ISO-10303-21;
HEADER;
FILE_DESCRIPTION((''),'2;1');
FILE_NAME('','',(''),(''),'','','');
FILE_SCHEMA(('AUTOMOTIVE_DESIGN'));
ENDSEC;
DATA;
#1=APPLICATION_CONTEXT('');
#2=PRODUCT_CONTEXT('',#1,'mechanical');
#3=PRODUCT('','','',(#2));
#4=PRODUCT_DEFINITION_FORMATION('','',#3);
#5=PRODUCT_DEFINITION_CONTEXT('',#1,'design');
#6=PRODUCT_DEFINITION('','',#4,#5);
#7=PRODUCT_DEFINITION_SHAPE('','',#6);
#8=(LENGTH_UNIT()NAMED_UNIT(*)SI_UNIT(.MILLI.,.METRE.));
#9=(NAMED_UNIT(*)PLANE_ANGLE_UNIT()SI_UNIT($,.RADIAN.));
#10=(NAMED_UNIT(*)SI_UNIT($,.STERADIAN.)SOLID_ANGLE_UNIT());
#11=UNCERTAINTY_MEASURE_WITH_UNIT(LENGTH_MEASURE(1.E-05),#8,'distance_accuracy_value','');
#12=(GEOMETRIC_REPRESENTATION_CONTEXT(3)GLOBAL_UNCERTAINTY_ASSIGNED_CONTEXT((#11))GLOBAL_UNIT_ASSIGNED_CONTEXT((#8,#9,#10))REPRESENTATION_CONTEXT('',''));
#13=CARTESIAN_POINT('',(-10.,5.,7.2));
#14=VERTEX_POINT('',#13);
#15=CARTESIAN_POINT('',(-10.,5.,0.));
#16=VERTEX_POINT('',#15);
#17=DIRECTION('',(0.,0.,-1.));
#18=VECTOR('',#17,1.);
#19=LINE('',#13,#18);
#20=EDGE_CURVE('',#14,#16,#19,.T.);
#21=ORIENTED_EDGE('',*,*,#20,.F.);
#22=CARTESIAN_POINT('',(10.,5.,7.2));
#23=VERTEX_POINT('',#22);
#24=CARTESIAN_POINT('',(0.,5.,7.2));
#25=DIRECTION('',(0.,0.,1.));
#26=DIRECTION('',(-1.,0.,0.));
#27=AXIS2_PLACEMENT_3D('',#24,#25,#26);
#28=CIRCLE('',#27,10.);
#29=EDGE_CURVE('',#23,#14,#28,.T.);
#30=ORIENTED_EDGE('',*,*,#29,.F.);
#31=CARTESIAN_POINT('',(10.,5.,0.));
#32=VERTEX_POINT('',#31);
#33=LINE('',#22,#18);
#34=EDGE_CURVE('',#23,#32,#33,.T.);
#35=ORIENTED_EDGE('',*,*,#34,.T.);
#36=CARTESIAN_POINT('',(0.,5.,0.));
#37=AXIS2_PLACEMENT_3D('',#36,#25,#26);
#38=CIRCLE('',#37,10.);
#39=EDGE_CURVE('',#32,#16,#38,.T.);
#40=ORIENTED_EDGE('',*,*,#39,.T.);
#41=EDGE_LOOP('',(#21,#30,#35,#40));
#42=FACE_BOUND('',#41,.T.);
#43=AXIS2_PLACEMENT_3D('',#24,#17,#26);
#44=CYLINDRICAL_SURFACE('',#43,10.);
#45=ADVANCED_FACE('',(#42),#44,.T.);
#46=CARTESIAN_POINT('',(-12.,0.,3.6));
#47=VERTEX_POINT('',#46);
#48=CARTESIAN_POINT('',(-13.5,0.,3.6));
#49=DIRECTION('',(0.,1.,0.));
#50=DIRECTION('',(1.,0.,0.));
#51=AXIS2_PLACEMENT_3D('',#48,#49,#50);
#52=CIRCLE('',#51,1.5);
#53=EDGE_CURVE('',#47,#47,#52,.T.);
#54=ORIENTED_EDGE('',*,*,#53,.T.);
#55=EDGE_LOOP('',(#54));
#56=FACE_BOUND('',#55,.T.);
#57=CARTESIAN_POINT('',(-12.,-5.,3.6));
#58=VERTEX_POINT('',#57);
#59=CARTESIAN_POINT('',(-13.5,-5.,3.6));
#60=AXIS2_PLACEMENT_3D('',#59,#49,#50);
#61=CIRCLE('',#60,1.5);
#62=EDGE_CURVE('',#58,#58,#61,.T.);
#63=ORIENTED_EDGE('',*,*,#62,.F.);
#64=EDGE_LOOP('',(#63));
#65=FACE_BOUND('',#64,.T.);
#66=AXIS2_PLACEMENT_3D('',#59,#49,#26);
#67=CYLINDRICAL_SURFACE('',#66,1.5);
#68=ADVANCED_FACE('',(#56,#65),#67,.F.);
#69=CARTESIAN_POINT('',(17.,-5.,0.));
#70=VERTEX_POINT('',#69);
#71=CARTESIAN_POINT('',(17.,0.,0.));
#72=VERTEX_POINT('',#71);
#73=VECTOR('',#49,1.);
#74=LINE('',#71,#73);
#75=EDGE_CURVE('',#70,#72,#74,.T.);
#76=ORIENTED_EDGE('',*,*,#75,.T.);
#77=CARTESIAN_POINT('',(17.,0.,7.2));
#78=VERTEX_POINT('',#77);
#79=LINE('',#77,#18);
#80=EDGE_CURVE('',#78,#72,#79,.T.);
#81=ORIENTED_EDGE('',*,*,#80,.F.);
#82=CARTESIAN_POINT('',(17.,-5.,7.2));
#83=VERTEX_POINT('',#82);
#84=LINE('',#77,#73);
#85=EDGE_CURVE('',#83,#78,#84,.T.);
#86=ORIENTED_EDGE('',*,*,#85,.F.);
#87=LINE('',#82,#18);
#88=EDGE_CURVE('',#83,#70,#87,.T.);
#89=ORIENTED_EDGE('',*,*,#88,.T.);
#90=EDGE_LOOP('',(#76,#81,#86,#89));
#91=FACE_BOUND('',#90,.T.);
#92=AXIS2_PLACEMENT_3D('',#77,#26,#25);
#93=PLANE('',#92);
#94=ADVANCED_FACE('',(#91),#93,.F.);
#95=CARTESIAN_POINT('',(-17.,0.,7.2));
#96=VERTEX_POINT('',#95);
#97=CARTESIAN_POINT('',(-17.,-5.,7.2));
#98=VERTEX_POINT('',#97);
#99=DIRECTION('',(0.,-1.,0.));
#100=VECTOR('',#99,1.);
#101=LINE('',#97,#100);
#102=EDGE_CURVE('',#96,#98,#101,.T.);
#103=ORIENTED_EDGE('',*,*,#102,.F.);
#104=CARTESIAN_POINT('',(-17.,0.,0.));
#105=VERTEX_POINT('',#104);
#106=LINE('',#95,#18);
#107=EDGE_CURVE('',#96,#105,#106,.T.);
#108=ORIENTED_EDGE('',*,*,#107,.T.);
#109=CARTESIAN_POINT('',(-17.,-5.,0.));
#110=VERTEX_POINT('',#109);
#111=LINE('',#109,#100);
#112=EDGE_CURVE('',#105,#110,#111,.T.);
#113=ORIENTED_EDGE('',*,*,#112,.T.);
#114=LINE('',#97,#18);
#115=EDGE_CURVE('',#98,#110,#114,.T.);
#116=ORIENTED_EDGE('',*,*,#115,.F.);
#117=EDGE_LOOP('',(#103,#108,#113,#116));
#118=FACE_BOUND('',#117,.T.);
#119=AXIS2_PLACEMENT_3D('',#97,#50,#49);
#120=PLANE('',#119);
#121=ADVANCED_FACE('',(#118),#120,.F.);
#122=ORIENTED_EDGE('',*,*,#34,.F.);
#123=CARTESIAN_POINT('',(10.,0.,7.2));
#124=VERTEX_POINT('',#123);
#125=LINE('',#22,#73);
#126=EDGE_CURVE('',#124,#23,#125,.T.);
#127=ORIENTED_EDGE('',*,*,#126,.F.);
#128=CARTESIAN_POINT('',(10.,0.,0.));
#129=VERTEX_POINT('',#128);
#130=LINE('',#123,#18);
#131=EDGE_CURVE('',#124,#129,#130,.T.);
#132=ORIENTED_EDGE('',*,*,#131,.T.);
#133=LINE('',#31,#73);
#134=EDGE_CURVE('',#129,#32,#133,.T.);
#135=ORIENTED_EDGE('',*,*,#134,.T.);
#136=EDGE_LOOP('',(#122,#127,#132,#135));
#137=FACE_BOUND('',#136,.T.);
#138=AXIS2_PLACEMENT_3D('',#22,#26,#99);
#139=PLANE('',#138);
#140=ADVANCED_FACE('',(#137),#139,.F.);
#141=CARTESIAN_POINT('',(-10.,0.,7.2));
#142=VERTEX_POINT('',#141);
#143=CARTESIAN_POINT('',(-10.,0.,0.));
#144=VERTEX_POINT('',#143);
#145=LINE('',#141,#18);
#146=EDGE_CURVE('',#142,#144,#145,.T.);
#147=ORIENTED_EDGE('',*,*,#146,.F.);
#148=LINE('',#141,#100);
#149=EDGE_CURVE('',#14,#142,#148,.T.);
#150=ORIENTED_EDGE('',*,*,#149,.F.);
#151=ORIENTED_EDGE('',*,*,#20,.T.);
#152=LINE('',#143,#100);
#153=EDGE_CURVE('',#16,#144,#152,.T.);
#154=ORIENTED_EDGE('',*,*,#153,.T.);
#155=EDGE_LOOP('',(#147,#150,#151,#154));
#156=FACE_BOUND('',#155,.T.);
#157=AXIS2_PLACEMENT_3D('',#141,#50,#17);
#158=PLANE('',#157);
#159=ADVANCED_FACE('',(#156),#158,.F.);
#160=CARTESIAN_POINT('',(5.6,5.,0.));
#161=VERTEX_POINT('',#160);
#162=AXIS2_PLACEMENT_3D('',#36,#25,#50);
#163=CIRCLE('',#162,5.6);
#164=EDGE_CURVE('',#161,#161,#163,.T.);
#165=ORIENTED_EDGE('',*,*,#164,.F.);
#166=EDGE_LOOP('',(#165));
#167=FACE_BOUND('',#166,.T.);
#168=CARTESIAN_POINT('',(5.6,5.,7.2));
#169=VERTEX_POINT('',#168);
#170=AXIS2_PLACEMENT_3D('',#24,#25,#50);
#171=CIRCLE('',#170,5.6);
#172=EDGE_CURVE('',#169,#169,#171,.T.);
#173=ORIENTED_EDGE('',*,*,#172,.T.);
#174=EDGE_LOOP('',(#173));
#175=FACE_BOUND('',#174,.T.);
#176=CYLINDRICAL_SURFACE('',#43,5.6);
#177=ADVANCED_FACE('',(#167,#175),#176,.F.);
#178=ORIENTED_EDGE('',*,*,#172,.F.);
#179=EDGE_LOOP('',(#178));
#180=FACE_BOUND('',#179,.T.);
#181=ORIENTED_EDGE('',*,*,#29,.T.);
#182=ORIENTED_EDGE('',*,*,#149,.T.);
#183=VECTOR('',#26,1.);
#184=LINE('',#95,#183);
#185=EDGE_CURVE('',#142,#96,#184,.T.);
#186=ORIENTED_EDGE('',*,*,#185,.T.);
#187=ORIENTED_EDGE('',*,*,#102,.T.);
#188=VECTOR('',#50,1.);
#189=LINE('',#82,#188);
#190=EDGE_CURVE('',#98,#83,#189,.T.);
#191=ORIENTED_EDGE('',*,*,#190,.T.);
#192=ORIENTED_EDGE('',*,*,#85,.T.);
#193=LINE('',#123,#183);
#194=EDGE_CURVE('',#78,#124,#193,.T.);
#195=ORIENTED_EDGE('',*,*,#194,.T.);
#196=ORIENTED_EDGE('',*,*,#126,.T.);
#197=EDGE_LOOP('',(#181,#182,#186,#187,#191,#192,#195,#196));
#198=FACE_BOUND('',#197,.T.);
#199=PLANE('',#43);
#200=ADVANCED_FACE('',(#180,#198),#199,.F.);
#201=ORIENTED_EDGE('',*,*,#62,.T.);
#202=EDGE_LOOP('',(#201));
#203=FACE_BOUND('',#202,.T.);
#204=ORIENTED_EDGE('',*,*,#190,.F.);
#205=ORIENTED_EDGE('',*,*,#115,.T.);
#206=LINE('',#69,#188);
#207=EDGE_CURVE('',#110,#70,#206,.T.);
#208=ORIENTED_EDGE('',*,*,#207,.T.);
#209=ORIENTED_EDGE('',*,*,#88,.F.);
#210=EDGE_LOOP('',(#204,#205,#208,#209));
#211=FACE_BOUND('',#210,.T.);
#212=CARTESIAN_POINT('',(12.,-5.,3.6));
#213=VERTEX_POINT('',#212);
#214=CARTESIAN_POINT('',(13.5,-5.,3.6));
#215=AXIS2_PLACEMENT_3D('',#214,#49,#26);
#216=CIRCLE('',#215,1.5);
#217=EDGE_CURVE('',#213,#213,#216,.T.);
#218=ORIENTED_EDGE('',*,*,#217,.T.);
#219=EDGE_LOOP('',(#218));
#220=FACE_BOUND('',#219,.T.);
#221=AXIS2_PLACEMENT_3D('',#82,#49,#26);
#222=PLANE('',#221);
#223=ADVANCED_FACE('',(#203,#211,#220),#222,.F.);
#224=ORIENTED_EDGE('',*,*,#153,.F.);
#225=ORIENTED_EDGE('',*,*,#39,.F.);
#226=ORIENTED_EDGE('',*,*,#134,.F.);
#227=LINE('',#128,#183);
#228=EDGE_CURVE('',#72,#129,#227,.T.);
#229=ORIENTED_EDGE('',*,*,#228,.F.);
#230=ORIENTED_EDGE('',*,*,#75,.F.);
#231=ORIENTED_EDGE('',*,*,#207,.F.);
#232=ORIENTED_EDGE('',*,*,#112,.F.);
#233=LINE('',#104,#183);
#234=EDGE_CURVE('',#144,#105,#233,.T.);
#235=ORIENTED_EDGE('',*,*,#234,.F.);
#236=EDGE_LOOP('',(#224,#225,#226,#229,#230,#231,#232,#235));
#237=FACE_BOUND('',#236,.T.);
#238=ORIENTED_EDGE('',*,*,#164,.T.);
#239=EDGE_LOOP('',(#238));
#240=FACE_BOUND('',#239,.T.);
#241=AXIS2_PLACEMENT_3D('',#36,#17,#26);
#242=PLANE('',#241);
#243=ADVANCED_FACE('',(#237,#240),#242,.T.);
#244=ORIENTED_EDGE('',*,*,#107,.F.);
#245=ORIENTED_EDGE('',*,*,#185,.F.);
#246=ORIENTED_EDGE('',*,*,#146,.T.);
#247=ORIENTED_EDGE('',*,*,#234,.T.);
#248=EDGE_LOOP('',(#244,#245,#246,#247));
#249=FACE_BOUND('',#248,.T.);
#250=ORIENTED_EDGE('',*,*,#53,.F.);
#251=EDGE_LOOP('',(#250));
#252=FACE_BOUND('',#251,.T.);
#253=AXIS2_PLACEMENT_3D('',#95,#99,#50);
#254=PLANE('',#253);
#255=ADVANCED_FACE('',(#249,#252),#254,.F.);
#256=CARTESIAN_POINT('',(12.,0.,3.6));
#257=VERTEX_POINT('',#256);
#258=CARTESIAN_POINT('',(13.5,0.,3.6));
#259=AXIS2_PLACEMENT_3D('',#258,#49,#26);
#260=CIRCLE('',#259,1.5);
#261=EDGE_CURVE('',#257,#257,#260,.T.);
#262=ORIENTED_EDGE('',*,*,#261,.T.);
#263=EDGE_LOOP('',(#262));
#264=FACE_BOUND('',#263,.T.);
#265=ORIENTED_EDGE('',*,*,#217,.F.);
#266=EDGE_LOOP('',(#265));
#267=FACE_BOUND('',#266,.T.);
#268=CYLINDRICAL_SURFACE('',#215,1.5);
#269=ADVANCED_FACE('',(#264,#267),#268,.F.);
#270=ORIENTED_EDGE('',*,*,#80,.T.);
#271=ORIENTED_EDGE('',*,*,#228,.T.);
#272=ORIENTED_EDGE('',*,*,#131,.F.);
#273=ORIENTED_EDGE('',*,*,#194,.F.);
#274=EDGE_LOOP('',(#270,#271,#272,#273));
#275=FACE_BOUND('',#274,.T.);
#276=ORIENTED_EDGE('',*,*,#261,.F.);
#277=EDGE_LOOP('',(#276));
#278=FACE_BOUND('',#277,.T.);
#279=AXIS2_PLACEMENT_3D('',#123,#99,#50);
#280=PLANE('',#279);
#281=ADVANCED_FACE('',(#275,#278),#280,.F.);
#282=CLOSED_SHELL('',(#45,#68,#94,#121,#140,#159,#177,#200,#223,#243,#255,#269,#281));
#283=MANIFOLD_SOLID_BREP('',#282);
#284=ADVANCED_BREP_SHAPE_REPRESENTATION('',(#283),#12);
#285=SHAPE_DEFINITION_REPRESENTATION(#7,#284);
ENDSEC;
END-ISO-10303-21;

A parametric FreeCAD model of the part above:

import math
import FreeCAD as App
import Part
import Sketcher

V = App.Vector

doc = App.newDocument("Part")
body = doc.addObject("PartDesign::Body", "Body")

sketch1 = body.newObject("Sketcher::SketchObject", "Sketch")
sketch1.AttachmentSupport = (doc.getObject("XY_Plane"), [""])
sketch1.MapMode = "FlatFace"
sketch1.addGeometry([
    Part.LineSegment(V(17, 0, 0), V(10, 0, 0)),
    Part.LineSegment(V(10, 0, 0), V(10, 5, 0)),
    Part.ArcOfCircle(Part.Circle(V(0, 5, 0), V(0, 0, 1), 10), math.radians(0), math.radians(180)),
    Part.LineSegment(V(-10, 5, 0), V(-10, 0, 0)),
    Part.LineSegment(V(-10, 0, 0), V(-17, 0, 0)),
    Part.LineSegment(V(-17, 0, 0), V(-17, -5, 0)),
    Part.LineSegment(V(-17, -5, 0), V(17, -5, 0)),
    Part.LineSegment(V(17, -5, 0), V(17, 0, 0)),
    Part.Circle(V(0, 5, 0), V(0, 0, 1), 6),
], False)
sketch1.addConstraint([
    Sketcher.Constraint("Coincident", 0, 2, 1, 1),
    Sketcher.Constraint("Tangent", 1, 2, 2, 1),
    Sketcher.Constraint("Tangent", 2, 2, 3, 1),
    Sketcher.Constraint("Coincident", 3, 2, 4, 1),
    Sketcher.Constraint("Coincident", 4, 2, 5, 1),
    Sketcher.Constraint("Coincident", 5, 2, 6, 1),
    Sketcher.Constraint("Coincident", 6, 2, 7, 1),
    Sketcher.Constraint("Coincident", 7, 2, 0, 1),
    Sketcher.Constraint("Horizontal", 0),
    Sketcher.Constraint("Vertical", 1),
    Sketcher.Constraint("Vertical", 3),
    Sketcher.Constraint("Horizontal", 4),
    Sketcher.Constraint("Vertical", 5),
    Sketcher.Constraint("Horizontal", 6),
    Sketcher.Constraint("Vertical", 7),
    Sketcher.Constraint("Coincident", 8, 3, 2, 3),
    Sketcher.Constraint("Symmetric", 0, 2, 3, 2, -1, 1),
    Sketcher.Constraint("Symmetric", 4, 2, 7, 2, -2),
    Sketcher.Constraint("Equal", 3, 5),
    Sketcher.Constraint("Radius", 2, 10.0),
    Sketcher.Constraint("Diameter", 8, 11.2),
    Sketcher.Constraint("DistanceX", 0, 2, 0, 1, 7.0),
    Sketcher.Constraint("DistanceY", 1, 1, 1, 2, 5.0),
])
pad1 = body.newObject("PartDesign::Pad", "Pad")
pad1.Profile = sketch1
pad1.Length = 7.2

sketch2 = body.newObject("Sketcher::SketchObject", "Sketch001")
sketch2.AttachmentSupport = (doc.getObject("XZ_Plane"), [""])
sketch2.MapMode = "FlatFace"
sketch2.addGeometry([
    Part.Circle(V(13.5, 3.6, 0), V(0, 0, 1), 1.5),
    Part.Circle(V(-13.5, 3.6, 0), V(0, 0, 1), 1.5),
], False)
sketch2.addConstraint([
    Sketcher.Constraint("Equal", 0, 1),
    Sketcher.Constraint("Symmetric", 0, 3, 1, 3, -2),
    Sketcher.Constraint("Diameter", 0, 3.0),
    Sketcher.Constraint("DistanceX", 1, 3, 0, 3, 27.0),
    Sketcher.Constraint("DistanceY", -1, 1, 0, 3, 3.6),
])
pocket1 = body.newObject("PartDesign::Pocket", "Pocket")
pocket1.Profile = sketch2
pocket1.Type = "ThroughAll"
pocket1.Reversed = True

doc.recompute()
